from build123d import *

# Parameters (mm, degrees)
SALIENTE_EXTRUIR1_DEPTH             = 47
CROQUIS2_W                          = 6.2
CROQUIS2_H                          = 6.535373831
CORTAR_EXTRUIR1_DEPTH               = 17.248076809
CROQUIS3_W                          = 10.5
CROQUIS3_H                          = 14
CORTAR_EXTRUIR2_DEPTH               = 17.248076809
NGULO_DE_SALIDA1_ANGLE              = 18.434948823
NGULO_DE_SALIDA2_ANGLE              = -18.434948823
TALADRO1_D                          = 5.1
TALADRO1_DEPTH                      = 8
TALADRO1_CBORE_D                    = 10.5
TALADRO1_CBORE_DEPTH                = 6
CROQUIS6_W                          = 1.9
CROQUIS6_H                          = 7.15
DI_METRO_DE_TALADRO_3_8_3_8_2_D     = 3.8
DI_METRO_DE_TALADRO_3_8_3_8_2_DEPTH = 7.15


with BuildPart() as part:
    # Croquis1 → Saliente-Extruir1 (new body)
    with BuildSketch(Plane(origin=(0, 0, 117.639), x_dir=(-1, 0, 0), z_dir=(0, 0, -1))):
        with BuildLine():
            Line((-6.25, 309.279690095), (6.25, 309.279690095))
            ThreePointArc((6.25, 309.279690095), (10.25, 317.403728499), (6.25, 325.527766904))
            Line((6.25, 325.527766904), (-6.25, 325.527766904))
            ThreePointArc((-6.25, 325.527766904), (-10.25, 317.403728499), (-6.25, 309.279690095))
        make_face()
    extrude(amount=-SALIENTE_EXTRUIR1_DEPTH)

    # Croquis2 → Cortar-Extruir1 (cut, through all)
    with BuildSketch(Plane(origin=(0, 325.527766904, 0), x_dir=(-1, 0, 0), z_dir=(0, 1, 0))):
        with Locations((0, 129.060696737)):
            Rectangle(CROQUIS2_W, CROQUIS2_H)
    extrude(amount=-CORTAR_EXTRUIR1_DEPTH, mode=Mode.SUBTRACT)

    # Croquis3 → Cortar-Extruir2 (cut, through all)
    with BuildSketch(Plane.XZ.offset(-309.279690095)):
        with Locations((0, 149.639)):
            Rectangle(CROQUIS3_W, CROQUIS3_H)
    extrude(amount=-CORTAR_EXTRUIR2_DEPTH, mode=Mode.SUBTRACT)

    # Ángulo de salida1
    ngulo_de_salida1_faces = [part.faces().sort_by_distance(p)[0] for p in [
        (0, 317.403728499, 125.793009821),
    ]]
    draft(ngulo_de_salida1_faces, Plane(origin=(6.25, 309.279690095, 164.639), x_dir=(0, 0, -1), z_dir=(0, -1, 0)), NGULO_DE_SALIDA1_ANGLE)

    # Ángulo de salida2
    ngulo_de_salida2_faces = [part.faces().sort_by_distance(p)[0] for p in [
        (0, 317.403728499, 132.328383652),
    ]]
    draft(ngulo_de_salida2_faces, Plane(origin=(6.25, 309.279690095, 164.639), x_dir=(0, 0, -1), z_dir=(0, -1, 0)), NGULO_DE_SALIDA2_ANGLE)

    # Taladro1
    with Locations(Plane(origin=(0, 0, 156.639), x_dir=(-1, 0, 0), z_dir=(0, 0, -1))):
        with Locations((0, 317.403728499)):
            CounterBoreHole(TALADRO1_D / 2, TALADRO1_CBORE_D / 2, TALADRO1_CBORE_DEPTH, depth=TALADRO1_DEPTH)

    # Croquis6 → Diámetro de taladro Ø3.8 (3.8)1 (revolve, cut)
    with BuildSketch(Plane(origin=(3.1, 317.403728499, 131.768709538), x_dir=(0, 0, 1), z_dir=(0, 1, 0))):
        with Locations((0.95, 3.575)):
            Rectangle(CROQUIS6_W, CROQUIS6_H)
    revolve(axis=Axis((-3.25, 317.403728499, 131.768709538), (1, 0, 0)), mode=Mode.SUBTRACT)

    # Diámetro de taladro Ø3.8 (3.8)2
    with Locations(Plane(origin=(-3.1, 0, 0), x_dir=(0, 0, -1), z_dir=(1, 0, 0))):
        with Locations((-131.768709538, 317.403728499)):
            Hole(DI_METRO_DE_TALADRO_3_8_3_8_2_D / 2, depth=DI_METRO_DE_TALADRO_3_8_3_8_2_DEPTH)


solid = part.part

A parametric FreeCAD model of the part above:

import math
import FreeCAD as App
import Part
import Sketcher


def faces_at(feature, points):
    """Names of the faces that lie closest to the given points."""
    faces = feature.Shape.Faces
    near = lambda p: min(range(len(faces)), key=lambda i: faces[i].distToShape(Part.Vertex(*p))[0])
    return sorted({f"Face{near(p) + 1}" for p in points})


def add_polygon(sketch, points):
    """Adds a closed chain of lines whose ends are joined by coincident constraints."""
    first, n = sketch.GeometryCount, len(points)
    for a, b in zip(points, points[1:] + points[:1]):
        sketch.addGeometry(Part.LineSegment(App.Vector(*a, 0), App.Vector(*b, 0)), False)
    for i in range(n):
        sketch.addConstraint(Sketcher.Constraint("Coincident", first + i, 2, first + (i + 1) % n, 1))

doc = App.newDocument("Part")
params = doc.addObject("Spreadsheet::Sheet", "Params")
for row, (alias, value) in enumerate([
    ("sketch1_radius", "10.25 mm"),
    ("sketch1_width", "12.5 mm"),
    ("pad1_length", "47 mm"),
    ("sketch2_width", "6.2 mm"),
    ("sketch3_height", "14 mm"),
    ("sketch3_width", "10.5 mm"),
    ("draft_angle", "18.434949 deg"),
    ("draft2_angle", "18.434949 deg"),
    ("sketch4_diameter", "5.1 mm"),
    ("hole_diameter", "5.1 mm"),
    ("hole_depth", "8 mm"),
    ("hole_cbore_diameter", "10.5 mm"),
    ("hole_cbore_depth", "6 mm"),
    ("sketch5_height", "1.9 mm"),
    ("sketch5_width", "7.15 mm"),
    ("groove_angle", "360 deg"),
    ("sketch6_diameter", "3.8 mm"),
    ("hole2_diameter", "3.8 mm"),
    ("hole2_depth", "7.15 mm"),
], start=1):
    params.set(f"A{row}", alias)
    params.set(f"B{row}", "=" + value)
    params.setAlias(f"B{row}", alias)

body = doc.addObject("PartDesign::Body", "Body")

sketch1 = doc.addObject("Sketcher::SketchObject", "Sketch")
body.addObject(sketch1)
sketch1.AttachmentSupport = (doc.XY_Plane, [""])
sketch1.MapMode = "FlatFace"
sketch1.AttachmentOffset = App.Placement(App.Vector(0, 0, 117.639), App.Rotation())
sketch1.addGeometry([
    Part.LineSegment(App.Vector(6, 309, 0), App.Vector(-6, 309, 0)),
    Part.ArcOfCircle(Part.Circle(App.Vector(0, 317, 0), App.Vector(0, 0, 1), 10), math.radians(128), math.radians(232)),
    Part.LineSegment(App.Vector(-6, 326, 0), App.Vector(6, 326, 0)),
    Part.ArcOfCircle(Part.Circle(App.Vector(0, 317, 0), App.Vector(0, 0, 1), 10), math.radians(-52), math.radians(52)),
], False)
sketch1.addConstraint([
    Sketcher.Constraint("Coincident", 0, 2, 1, 2),
    Sketcher.Constraint("Coincident", 1, 1, 2, 1),
    Sketcher.Constraint("Coincident", 2, 2, 3, 2),
    Sketcher.Constraint("Coincident", 3, 1, 0, 1),
    Sketcher.Constraint("Horizontal", 0),
    Sketcher.Constraint("Horizontal", 2),
    Sketcher.Constraint("Coincident", 3, 3, 1, 3),
    Sketcher.Constraint("Equal", 1, 3),
    Sketcher.Constraint("PointOnObject", 1, 3, -2),
    Sketcher.Constraint("Vertical", 0, 2, 1, 1),
    Sketcher.Constraint("Radius", 1, 10.25),
    Sketcher.Constraint("DistanceX", 0, 2, 0, 1, 12.5),
    Sketcher.Constraint("DistanceY", -1, 1, 1, 3, 317.403728),
])
sketch1.setExpression("Constraints[10]", "Params.sketch1_radius")
sketch1.setExpression("Constraints[11]", "Params.sketch1_width")
pad1 = doc.addObject("PartDesign::Pad", "Pad")
body.addObject(pad1)
pad1.Profile = sketch1
pad1.setExpression("Length", "Params.pad1_length")

sketch2 = doc.addObject("Sketcher::SketchObject", "Sketch001")
body.addObject(sketch2)
sketch2.AttachmentSupport = (doc.XZ_Plane, [""])
sketch2.MapMode = "FlatFace"
sketch2.AttachmentOffset = App.Placement(App.Vector(0, 0, -325.527767), App.Rotation())
add_polygon(sketch2, [(3, 132), (3, 126), (-3, 126), (-3, 132)])
sketch2.addConstraint([
    Sketcher.Constraint("Vertical", 0),
    Sketcher.Constraint("Horizontal", 1),
    Sketcher.Constraint("Vertical", 2),
    Sketcher.Constraint("Horizontal", 3),
    Sketcher.Constraint("DistanceX", 1, 2, 1, 1, 6.2),
    Sketcher.Constraint("DistanceX", -1, 1, 0, 2, 3.1),
    Sketcher.Constraint("DistanceY", 0, 2, 0, 1, 6.535374),
    Sketcher.Constraint("DistanceY", -1, 1, 0, 2, 125.79301),
])
sketch2.setExpression("Constraints[8]", "Params.sketch2_width")
pocket1 = doc.addObject("PartDesign::Pocket", "Pocket")
body.addObject(pocket1)
pocket1.Profile = sketch2
pocket1.Type = "ThroughAll"
pocket1.Reversed = True

sketch3 = doc.addObject("Sketcher::SketchObject", "Sketch002")
body.addObject(sketch3)
sketch3.AttachmentSupport = (doc.XZ_Plane, [""])
sketch3.MapMode = "FlatFace"
sketch3.AttachmentOffset = App.Placement(App.Vector(0, 0, -309.27969), App.Rotation())
add_polygon(sketch3, [(-5, 157), (-5, 143), (5, 143), (5, 157)])
sketch3.addConstraint([
    Sketcher.Constraint("Vertical", 0),
    Sketcher.Constraint("Horizontal", 1),
    Sketcher.Constraint("Vertical", 2),
    Sketcher.Constraint("Horizontal", 3),
    Sketcher.Constraint("DistanceY", 0, 2, 0, 1, 14.0),
    Sketcher.Constraint("DistanceX", 1, 1, 1, 2, 10.5),
    Sketcher.Constraint("DistanceX", 0, 2, -1, 1, 5.25),
    Sketcher.Constraint("DistanceY", -1, 1, 0, 2, 142.639),
])
sketch3.setExpression("Constraints[8]", "Params.sketch3_height")
sketch3.setExpression("Constraints[9]", "Params.sketch3_width")
pocket2 = doc.addObject("PartDesign::Pocket", "Pocket001")
body.addObject(pocket2)
pocket2.Profile = sketch3
pocket2.Type = "ThroughAll"
doc.recompute()

datumplane = doc.addObject("PartDesign::Plane", "DatumPlane")
body.addObject(datumplane)
datumplane.AttachmentSupport = (doc.XZ_Plane, [""])
datumplane.MapMode = "FlatFace"
datumplane.AttachmentOffset = App.Placement(App.Vector(0, 0, -309.27969), App.Rotation())
draft = doc.addObject("PartDesign::Draft", "Draft")
body.addObject(draft)
draft.Base = (pocket2, faces_at(pocket2, [(0, 317.404, 125.793)]))
draft.NeutralPlane = (datumplane, [""])
draft.setExpression("Angle", "Params.draft_angle")
draft.Reversed = False
doc.recompute()

datumplane2 = doc.addObject("PartDesign::Plane", "DatumPlane001")
body.addObject(datumplane2)
datumplane2.AttachmentSupport = (doc.XZ_Plane, [""])
datumplane2.MapMode = "FlatFace"
datumplane2.AttachmentOffset = App.Placement(App.Vector(0, 0, -309.27969), App.Rotation())
draft2 = doc.addObject("PartDesign::Draft", "Draft001")
body.addObject(draft2)
draft2.Base = (draft, faces_at(draft, [(0, 317.404, 132.328)]))
draft2.NeutralPlane = (datumplane2, [""])
draft2.setExpression("Angle", "Params.draft2_angle")
draft2.Reversed = True

sketch4 = doc.addObject("Sketcher::SketchObject", "Sketch003")
body.addObject(sketch4)
sketch4.AttachmentSupport = (doc.XY_Plane, [""])
sketch4.MapMode = "FlatFace"
sketch4.AttachmentOffset = App.Placement(App.Vector(0, 0, 156.639), App.Rotation())
sketch4.addGeometry(Part.Circle(App.Vector(0, 317.4, 0), App.Vector(0, 0, 1), 2.5), False)
sketch4.addConstraint([
    Sketcher.Constraint("PointOnObject", 0, 3, -2),
    Sketcher.Constraint("Diameter", 0, 5.1),
    Sketcher.Constraint("DistanceY", -1, 1, 0, 3, 317.403728),
])
sketch4.setExpression("Constraints[1]", "Params.sketch4_diameter")
doc.recompute()
hole = doc.addObject("PartDesign::Hole", "Hole")
body.addObject(hole)
hole.Profile = sketch4
hole.ThreadType = "None"
hole.setExpression("Diameter", "Params.hole_diameter")
hole.DepthType = "Dimension"
hole.setExpression("Depth", "Params.hole_depth")
hole.DrillPoint = "Flat"
hole.HoleCutType = "Counterbore"
hole.setExpression("HoleCutDiameter", "Params.hole_cbore_diameter")
hole.setExpression("HoleCutDepth", "Params.hole_cbore_depth")
hole.Reversed = True

sketch5 = doc.addObject("Sketcher::SketchObject", "Sketch004")
body.addObject(sketch5)
sketch5.AttachmentSupport = (doc.XZ_Plane, [""])
sketch5.MapMode = "FlatFace"
sketch5.AttachmentOffset = App.Placement(App.Vector(0, 0, -317.403728), App.Rotation())
add_polygon(sketch5, [(10.2, 131.8), (3.1, 131.8), (3.1, 133.7), (10.2, 133.7)])
sketch5.addGeometry(Part.LineSegment(App.Vector(3.1, 131.8, 0), App.Vector(10.2, 131.8, 0)), True)
sketch5.addConstraint([
    Sketcher.Constraint("Horizontal", 0),
    Sketcher.Constraint("Vertical", 1),
    Sketcher.Constraint("Horizontal", 2),
    Sketcher.Constraint("Vertical", 3),
    Sketcher.Constraint("Horizontal", 4),
    Sketcher.Constraint("Coincident", 4, 1, 0, 2),
    Sketcher.Constraint("Vertical", 2, 2, 4, 2),
    Sketcher.Constraint("DistanceY", 1, 1, 1, 2, 1.9),
    Sketcher.Constraint("DistanceX", 0, 2, 0, 1, 7.15),
    Sketcher.Constraint("DistanceX", -1, 1, 0, 2, 3.1),
    Sketcher.Constraint("DistanceY", -1, 1, 0, 2, 131.76871),
])
sketch5.setExpression("Constraints[11]", "Params.sketch5_height")
sketch5.setExpression("Constraints[12]", "Params.sketch5_width")
groove = doc.addObject("PartDesign::Groove", "Groove")
body.addObject(groove)
groove.Profile = sketch5
groove.ReferenceAxis = (sketch5, ["Axis0"])
groove.setExpression("Angle", "Params.groove_angle")

sketch6 = doc.addObject("Sketcher::SketchObject", "Sketch005")
body.addObject(sketch6)
sketch6.AttachmentSupport = (doc.YZ_Plane, [""])
sketch6.MapMode = "FlatFace"
sketch6.AttachmentOffset = App.Placement(App.Vector(0, 0, -3.1), App.Rotation())
sketch6.addGeometry(Part.Circle(App.Vector(317.4, 131.8, 0), App.Vector(0, 0, 1), 1.9), False)
sketch6.addConstraint([
    Sketcher.Constraint("Diameter", 0, 3.8),
    Sketcher.Constraint("DistanceX", -1, 1, 0, 3, 317.403728),
    Sketcher.Constraint("DistanceY", -1, 1, 0, 3, 131.76871),
])
sketch6.setExpression("Constraints[0]", "Params.sketch6_diameter")
doc.recompute()
hole2 = doc.addObject("PartDesign::Hole", "Hole001")
body.addObject(hole2)
hole2.Profile = sketch6
hole2.ThreadType = "None"
hole2.setExpression("Diameter", "Params.hole2_diameter")
hole2.DepthType = "Dimension"
hole2.setExpression("Depth", "Params.hole2_depth")
hole2.DrillPoint = "Flat"

doc.recompute()
